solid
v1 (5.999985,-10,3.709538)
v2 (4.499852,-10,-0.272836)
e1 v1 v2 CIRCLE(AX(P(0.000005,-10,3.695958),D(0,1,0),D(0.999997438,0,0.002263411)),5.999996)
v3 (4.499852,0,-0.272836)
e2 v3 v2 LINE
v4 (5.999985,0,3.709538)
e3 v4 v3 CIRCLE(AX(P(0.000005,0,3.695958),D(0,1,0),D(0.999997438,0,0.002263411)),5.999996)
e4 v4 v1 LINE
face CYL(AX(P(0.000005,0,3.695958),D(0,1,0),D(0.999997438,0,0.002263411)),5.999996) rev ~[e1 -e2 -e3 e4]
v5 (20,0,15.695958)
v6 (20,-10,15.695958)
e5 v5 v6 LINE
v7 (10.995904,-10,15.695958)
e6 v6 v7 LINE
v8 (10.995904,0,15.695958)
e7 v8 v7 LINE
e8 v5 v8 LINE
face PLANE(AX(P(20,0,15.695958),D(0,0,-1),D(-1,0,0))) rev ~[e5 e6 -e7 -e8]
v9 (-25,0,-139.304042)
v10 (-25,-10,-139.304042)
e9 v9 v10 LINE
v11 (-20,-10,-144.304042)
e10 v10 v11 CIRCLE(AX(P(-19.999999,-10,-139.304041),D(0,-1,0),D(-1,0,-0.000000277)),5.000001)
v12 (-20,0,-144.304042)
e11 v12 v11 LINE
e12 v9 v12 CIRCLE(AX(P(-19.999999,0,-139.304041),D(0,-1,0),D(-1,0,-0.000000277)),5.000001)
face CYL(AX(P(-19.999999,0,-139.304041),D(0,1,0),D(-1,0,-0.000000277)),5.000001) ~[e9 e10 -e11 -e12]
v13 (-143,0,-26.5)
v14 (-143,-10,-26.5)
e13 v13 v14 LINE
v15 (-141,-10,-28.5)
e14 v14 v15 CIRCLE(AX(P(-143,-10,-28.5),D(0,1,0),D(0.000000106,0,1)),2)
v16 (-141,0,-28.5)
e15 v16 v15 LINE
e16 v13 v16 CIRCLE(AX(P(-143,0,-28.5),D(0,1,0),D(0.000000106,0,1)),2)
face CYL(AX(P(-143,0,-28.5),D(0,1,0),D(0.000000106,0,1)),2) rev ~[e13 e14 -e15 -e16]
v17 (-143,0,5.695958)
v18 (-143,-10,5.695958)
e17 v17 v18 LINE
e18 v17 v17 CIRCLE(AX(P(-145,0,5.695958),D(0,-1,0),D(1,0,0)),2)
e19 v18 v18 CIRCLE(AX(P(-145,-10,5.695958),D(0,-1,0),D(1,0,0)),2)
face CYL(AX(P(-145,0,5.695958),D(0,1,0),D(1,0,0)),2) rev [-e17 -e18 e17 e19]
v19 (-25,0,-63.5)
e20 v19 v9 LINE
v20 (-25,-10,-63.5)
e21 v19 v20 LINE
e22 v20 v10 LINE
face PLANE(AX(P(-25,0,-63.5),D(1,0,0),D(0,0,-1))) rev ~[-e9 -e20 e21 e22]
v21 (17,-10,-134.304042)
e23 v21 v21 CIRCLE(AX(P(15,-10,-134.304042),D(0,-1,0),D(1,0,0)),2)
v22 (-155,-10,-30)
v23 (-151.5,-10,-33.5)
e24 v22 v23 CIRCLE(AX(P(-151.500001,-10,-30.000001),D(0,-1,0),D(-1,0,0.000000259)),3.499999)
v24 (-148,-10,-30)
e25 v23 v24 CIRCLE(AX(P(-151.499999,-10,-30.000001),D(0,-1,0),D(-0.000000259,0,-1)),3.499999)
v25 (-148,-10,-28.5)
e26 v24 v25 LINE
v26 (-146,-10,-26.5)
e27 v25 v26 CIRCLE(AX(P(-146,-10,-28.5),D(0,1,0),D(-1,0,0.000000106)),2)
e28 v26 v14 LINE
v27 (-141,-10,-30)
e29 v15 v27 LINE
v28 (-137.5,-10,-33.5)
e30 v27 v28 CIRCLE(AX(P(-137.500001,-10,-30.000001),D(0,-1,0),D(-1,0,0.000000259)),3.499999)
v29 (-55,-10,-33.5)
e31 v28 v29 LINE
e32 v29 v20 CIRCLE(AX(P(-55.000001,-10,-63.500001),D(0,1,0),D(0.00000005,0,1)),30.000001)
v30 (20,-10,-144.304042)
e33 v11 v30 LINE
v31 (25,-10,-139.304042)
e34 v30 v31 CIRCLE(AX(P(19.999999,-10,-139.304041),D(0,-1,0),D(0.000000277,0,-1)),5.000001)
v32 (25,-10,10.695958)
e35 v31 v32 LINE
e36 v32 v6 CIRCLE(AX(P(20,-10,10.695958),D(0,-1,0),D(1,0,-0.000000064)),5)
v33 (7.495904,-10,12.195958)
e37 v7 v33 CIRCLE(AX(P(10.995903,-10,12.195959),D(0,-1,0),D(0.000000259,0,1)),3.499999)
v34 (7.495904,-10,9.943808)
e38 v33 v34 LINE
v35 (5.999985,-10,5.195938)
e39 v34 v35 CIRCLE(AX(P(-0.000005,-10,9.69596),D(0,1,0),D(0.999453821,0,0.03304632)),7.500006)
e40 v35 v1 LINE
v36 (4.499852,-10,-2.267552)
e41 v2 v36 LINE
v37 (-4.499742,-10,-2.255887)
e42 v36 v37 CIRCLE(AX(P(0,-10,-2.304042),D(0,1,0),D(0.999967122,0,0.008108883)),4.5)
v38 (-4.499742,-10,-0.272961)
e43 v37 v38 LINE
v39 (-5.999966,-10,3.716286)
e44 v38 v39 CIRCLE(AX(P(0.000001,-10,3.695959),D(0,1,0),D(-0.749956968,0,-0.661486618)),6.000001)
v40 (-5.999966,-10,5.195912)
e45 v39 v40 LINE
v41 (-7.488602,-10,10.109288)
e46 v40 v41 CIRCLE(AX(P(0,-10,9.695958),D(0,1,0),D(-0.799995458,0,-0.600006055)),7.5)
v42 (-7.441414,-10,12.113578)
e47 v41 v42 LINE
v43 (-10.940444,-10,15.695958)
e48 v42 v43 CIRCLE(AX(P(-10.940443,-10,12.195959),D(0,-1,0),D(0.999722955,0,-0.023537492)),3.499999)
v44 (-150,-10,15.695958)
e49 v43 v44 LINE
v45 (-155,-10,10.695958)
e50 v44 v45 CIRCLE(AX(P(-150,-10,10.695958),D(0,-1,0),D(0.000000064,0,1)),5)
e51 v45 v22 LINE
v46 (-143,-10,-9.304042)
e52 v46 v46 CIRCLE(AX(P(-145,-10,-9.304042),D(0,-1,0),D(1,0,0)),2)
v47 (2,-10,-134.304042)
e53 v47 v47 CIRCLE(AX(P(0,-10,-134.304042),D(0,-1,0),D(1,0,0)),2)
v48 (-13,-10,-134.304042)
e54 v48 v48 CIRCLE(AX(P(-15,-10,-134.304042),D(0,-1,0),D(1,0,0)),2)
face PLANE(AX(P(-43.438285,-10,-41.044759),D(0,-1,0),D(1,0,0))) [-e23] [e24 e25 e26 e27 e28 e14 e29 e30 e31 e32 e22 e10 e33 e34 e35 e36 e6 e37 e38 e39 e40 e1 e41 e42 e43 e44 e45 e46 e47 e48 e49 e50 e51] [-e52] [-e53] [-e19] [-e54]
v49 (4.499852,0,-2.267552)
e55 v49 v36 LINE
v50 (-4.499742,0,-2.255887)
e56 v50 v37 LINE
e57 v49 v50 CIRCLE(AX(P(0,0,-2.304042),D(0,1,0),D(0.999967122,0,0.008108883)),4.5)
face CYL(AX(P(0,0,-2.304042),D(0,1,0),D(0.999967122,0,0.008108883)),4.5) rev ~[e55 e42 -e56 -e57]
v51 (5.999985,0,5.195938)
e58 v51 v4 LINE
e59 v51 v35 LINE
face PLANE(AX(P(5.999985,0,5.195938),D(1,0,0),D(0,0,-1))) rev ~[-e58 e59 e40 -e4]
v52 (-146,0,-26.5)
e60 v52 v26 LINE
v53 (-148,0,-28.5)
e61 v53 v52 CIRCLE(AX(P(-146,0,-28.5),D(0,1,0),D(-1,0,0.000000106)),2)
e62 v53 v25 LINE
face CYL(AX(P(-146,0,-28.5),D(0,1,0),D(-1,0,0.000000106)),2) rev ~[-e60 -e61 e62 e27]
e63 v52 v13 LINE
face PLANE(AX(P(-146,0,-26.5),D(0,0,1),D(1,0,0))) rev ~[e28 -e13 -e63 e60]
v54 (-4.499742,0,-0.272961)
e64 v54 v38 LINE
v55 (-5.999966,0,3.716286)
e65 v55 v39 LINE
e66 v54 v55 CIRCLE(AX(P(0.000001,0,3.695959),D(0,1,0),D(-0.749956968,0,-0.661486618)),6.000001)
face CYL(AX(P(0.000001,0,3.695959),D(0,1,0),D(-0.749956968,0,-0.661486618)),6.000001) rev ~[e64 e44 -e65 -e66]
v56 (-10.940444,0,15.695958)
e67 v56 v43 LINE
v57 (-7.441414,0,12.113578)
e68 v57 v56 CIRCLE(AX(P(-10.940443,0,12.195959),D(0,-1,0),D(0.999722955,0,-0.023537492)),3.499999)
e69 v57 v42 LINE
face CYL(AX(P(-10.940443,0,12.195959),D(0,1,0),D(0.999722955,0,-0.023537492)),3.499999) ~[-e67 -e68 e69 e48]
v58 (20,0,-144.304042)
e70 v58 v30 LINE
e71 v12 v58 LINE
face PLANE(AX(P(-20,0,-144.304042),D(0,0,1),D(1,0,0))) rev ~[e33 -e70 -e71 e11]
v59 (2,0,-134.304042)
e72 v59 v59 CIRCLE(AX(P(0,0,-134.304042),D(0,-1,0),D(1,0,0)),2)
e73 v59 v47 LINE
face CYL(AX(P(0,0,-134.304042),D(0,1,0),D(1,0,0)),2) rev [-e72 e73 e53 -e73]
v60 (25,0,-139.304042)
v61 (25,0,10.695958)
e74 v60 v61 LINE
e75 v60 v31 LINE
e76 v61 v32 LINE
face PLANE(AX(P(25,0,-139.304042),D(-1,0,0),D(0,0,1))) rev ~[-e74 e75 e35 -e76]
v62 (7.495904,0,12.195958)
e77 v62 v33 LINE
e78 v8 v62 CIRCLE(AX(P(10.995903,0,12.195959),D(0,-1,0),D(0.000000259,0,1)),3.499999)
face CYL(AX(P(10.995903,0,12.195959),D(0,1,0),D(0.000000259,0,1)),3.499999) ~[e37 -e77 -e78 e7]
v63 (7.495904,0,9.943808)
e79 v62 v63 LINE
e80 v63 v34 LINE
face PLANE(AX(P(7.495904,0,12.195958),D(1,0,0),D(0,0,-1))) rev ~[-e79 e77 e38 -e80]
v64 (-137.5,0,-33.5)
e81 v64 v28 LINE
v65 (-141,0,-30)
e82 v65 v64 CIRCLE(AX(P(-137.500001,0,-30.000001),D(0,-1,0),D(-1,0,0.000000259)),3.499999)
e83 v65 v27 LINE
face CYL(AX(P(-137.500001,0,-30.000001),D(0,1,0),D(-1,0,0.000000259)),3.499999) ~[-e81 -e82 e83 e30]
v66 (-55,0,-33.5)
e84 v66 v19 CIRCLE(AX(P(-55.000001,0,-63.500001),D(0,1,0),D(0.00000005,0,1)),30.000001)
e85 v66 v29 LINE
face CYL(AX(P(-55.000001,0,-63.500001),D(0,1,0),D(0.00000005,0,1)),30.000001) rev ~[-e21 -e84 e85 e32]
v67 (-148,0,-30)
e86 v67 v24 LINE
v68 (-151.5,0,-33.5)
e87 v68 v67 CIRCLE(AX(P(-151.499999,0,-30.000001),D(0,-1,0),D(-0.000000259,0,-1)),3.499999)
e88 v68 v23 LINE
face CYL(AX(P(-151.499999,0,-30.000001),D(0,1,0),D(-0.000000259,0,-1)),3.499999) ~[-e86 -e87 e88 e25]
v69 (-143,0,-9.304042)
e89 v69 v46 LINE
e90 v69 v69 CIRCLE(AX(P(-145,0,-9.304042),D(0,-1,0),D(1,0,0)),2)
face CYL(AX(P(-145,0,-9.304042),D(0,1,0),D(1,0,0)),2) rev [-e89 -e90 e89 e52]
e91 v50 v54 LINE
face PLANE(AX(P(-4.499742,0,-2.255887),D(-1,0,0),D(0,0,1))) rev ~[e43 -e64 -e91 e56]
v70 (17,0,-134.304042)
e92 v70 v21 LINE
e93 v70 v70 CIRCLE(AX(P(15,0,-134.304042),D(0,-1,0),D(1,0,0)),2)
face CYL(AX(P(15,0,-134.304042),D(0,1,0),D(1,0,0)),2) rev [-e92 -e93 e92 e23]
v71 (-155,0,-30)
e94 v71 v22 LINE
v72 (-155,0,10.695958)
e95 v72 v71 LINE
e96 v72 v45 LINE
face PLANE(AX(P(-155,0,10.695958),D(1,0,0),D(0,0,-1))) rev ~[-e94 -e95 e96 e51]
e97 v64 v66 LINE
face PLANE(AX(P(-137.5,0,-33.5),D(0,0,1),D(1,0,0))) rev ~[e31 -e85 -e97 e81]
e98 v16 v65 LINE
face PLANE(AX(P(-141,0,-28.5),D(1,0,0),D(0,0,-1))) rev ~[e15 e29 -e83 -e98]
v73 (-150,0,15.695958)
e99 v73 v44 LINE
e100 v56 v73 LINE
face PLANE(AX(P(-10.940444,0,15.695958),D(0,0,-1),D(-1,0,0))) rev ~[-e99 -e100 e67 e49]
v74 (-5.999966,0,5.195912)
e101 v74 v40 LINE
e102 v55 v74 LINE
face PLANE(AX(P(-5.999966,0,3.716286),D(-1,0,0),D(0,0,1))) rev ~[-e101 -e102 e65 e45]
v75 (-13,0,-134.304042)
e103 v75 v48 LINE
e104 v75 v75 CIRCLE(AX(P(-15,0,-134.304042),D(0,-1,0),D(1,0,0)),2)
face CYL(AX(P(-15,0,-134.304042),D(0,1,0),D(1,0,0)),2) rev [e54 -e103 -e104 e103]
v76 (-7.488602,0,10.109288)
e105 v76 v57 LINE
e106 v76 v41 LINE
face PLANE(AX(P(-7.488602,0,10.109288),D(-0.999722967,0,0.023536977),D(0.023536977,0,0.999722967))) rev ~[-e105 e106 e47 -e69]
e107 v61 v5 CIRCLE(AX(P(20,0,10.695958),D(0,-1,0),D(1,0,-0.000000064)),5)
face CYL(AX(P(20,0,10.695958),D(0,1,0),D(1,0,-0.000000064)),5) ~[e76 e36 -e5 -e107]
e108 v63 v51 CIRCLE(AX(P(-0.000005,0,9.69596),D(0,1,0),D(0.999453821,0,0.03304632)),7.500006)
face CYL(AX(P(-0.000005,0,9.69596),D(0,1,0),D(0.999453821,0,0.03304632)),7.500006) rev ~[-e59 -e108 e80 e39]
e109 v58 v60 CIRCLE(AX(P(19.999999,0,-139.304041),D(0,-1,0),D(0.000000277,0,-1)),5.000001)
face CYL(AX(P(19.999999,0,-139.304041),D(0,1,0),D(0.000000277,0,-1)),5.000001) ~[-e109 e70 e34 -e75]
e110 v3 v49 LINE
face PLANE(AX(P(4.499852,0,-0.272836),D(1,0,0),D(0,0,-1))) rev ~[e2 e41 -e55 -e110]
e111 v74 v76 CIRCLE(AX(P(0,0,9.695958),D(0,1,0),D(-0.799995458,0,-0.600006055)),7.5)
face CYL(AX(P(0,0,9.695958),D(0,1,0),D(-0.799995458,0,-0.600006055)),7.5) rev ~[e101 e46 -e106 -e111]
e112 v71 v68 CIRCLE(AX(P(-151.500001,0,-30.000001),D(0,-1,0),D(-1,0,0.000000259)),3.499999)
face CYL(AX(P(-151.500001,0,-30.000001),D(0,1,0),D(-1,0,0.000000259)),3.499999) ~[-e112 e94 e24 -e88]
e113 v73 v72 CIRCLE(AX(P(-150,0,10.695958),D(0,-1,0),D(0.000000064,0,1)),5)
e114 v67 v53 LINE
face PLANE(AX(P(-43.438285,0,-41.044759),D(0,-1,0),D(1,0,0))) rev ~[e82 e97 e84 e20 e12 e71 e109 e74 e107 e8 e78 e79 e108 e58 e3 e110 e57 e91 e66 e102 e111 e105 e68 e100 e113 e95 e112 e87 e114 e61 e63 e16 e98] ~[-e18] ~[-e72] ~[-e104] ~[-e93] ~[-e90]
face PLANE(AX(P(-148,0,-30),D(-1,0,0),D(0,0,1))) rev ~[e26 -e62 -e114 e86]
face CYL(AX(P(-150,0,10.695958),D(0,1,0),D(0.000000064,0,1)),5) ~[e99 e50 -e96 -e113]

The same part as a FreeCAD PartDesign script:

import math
import FreeCAD as App
import Part
import Sketcher
from FreeCAD import Vector
Q = App.Units.Quantity

doc = App.newDocument("Part")
body = doc.addObject("PartDesign::Body", "Body")

# Sketch on XZ plane
sketch1 = body.newObject("Sketcher::SketchObject", "Sketch")
sketch1.AttachmentSupport = (doc.getObject("XZ_Plane"), [""])
sketch1.MapMode = "FlatFace"
sketch1.addGeometry([
    Part.ArcOfCircle(Part.Circle(Vector(-137.5, -30, 0), Vector(0, 0, 1), 3.5), math.radians(180), math.radians(270)),  # 0
    Part.LineSegment(Vector(-137.5, -33.5, 0), Vector(-55, -33.5, 0)),  # 1
    Part.ArcOfCircle(Part.Circle(Vector(-55, -63.5, 0), Vector(0, 0, 1), 30), math.radians(0), math.radians(90)),  # 2
    Part.LineSegment(Vector(-25, -63.5, 0), Vector(-25, -139.3, 0)),  # 3
    Part.ArcOfCircle(Part.Circle(Vector(-20, -139.3, 0), Vector(0, 0, 1), 5), math.radians(-180), math.radians(-90)),  # 4
    Part.LineSegment(Vector(-20, -144.3, 0), Vector(20, -144.3, 0)),  # 5
    Part.ArcOfCircle(Part.Circle(Vector(20, -139.3, 0), Vector(0, 0, 1), 5), math.radians(-90), math.radians(0)),  # 6
    Part.LineSegment(Vector(25, -139.3, 0), Vector(25, 10.7, 0)),  # 7
    Part.ArcOfCircle(Part.Circle(Vector(20, 10.7, 0), Vector(0, 0, 1), 5), math.radians(0), math.radians(90)),  # 8
    Part.LineSegment(Vector(20, 15.7, 0), Vector(11, 15.7, 0)),  # 9
    Part.ArcOfCircle(Part.Circle(Vector(11, 12.2, 0), Vector(0, 0, 1), 3.5), math.radians(90), math.radians(180)),  # 10
    Part.LineSegment(Vector(7.5, 12.2, 0), Vector(7.5, 9.9, 0)),  # 11
    Part.ArcOfCircle(Part.Circle(Vector(0, 9.7, 0), Vector(0, 0, 1), 7.5), math.radians(-37), math.radians(2)),  # 12
    Part.LineSegment(Vector(6, 5.2, 0), Vector(6, 3.7, 0)),  # 13
    Part.ArcOfCircle(Part.Circle(Vector(0, 3.7, 0), Vector(0, 0, 1), 6), math.radians(-41), math.radians(0)),  # 14
    Part.LineSegment(Vector(4.5, -0.3, 0), Vector(4.5, -2.3, 0)),  # 15
    Part.ArcOfCircle(Part.Circle(Vector(0, -2.3, 0), Vector(0, 0, 1), 4.5), math.radians(179), math.radians(360)),  # 16
    Part.LineSegment(Vector(-4.5, -2.3, 0), Vector(-4.5, -0.3, 0)),  # 17
    Part.ArcOfCircle(Part.Circle(Vector(0, 3.7, 0), Vector(0, 0, 1), 6), math.radians(180), math.radians(221)),  # 18
    Part.LineSegment(Vector(-6, 3.7, 0), Vector(-6, 5.2, 0)),  # 19
    Part.ArcOfCircle(Part.Circle(Vector(0, 9.7, 0), Vector(0, 0, 1), 7.5), math.radians(177), math.radians(217)),  # 20
    Part.LineSegment(Vector(-7.5, 10.1, 0), Vector(-7.4, 12.1, 0)),  # 21
    Part.ArcOfCircle(Part.Circle(Vector(-10.9, 12.2, 0), Vector(0, 0, 1), 3.5), math.radians(-1), math.radians(90)),  # 22
    Part.LineSegment(Vector(-10.9, 15.7, 0), Vector(-150, 15.7, 0)),  # 23
    Part.ArcOfCircle(Part.Circle(Vector(-150, 10.7, 0), Vector(0, 0, 1), 5), math.radians(90), math.radians(180)),  # 24
    Part.LineSegment(Vector(-155, 10.7, 0), Vector(-155, -30, 0)),  # 25
    Part.ArcOfCircle(Part.Circle(Vector(-151.5, -30, 0), Vector(0, 0, 1), 3.5), math.radians(180), math.radians(270)),  # 26
    Part.ArcOfCircle(Part.Circle(Vector(-151.5, -30, 0), Vector(0, 0, 1), 3.5), math.radians(-90), math.radians(0)),  # 27
    Part.LineSegment(Vector(-148, -30, 0), Vector(-148, -28.5, 0)),  # 28
    Part.ArcOfCircle(Part.Circle(Vector(-146, -28.5, 0), Vector(0, 0, 1), 2), math.radians(90), math.radians(180)),  # 29
    Part.LineSegment(Vector(-146, -26.5, 0), Vector(-143, -26.5, 0)),  # 30
    Part.ArcOfCircle(Part.Circle(Vector(-143, -28.5, 0), Vector(0, 0, 1), 2), math.radians(0), math.radians(90)),  # 31
    Part.LineSegment(Vector(-141, -28.5, 0), Vector(-141, -30, 0)),  # 32
    Part.Circle(Vector(-15, -134.3, 0), Vector(0, 0, 1), 2),  # 33
    Part.Circle(Vector(0, -134.3, 0), Vector(0, 0, 1), 2),  # 34
    Part.Circle(Vector(15, -134.3, 0), Vector(0, 0, 1), 2),  # 35
    Part.Circle(Vector(-145, -9.3, 0), Vector(0, 0, 1), 2),  # 36
    Part.Circle(Vector(-145, 5.7, 0), Vector(0, 0, 1), 2),  # 37
], False)
sketch1.addConstraint([
    Sketcher.Constraint("Tangent", 0, 2, 1, 1),
    Sketcher.Constraint("Tangent", 1, 2, 2, 2),
    Sketcher.Constraint("Tangent", 2, 1, 3, 1),
    Sketcher.Constraint("Tangent", 3, 2, 4, 1),
    Sketcher.Constraint("Tangent", 4, 2, 5, 1),
    Sketcher.Constraint("Tangent", 5, 2, 6, 1),
    Sketcher.Constraint("Tangent", 6, 2, 7, 1),
    Sketcher.Constraint("Tangent", 7, 2, 8, 1),
    Sketcher.Constraint("Tangent", 8, 2, 9, 1),
    Sketcher.Constraint("Tangent", 9, 2, 10, 1),
    Sketcher.Constraint("Tangent", 10, 2, 11, 1),
    Sketcher.Constraint("Coincident", 11, 2, 12, 2),
    Sketcher.Constraint("Coincident", 12, 1, 13, 1),
    Sketcher.Constraint("Coincident", 13, 2, 14, 2),
    Sketcher.Constraint("Coincident", 14, 1, 15, 1),
    Sketcher.Constraint("Coincident", 15, 2, 16, 2),
    Sketcher.Constraint("Coincident", 16, 1, 17, 1),
    Sketcher.Constraint("Coincident", 17, 2, 18, 2),
    Sketcher.Constraint("Coincident", 18, 1, 19, 1),
    Sketcher.Constraint("Coincident", 19, 2, 20, 2),
    Sketcher.Constraint("Coincident", 20, 1, 21, 1),
    Sketcher.Constraint("Tangent", 21, 2, 22, 1),
    Sketcher.Constraint("Tangent", 22, 2, 23, 1),
    Sketcher.Constraint("Tangent", 23, 2, 24, 1),
    Sketcher.Constraint("Tangent", 24, 2, 25, 1),
    Sketcher.Constraint("Tangent", 25, 2, 26, 1),
    Sketcher.Constraint("Tangent", 26, 2, 27, 1),
    Sketcher.Constraint("Tangent", 27, 2, 28, 1),
    Sketcher.Constraint("Tangent", 28, 2, 29, 2),
    Sketcher.Constraint("Tangent", 29, 1, 30, 1),
    Sketcher.Constraint("Tangent", 30, 2, 31, 2),
    Sketcher.Constraint("Tangent", 31, 1, 32, 1),
    Sketcher.Constraint("Tangent", 32, 2, 0, 1),
    Sketcher.Constraint("Horizontal", 1),
    Sketcher.Constraint("Vertical", 3),
    Sketcher.Constraint("Horizontal", 5),
    Sketcher.Constraint("Vertical", 7),
    Sketcher.Constraint("Horizontal", 9),
    Sketcher.Constraint("Vertical", 11),
    Sketcher.Constraint("Vertical", 13),
    Sketcher.Constraint("Vertical", 15),
    Sketcher.Constraint("Vertical", 17),
    Sketcher.Constraint("Vertical", 19),
    Sketcher.Constraint("Horizontal", 23),
    Sketcher.Constraint("Vertical", 25),
    Sketcher.Constraint("Vertical", 28),
    Sketcher.Constraint("Horizontal", 30),
    Sketcher.Constraint("Vertical", 32),
    Sketcher.Constraint("Coincident", 18, 3, 14, 3),
    Sketcher.Constraint("Coincident", 20, 3, 12, 3),
    Sketcher.Constraint("Equal", 4, 6),
    Sketcher.Constraint("Equal", 6, 8),
    Sketcher.Constraint("Equal", 0, 10),
    Sketcher.Constraint("Equal", 10, 22),
    Sketcher.Constraint("Equal", 8, 24),
    Sketcher.Constraint("Equal", 22, 26),
    Sketcher.Constraint("Equal", 26, 27),
    Sketcher.Constraint("Equal", 29, 31),
    Sketcher.Constraint("Equal", 31, 33),
    Sketcher.Constraint("Equal", 33, 34),
    Sketcher.Constraint("Equal", 34, 35),
    Sketcher.Constraint("Equal", 35, 36),
    Sketcher.Constraint("Equal", 36, 37),
    Sketcher.Constraint("Symmetric", 33, 3, 35, 3, -2),
    Sketcher.Constraint("PointOnObject", 16, 3, -2),
    Sketcher.Constraint("PointOnObject", 18, 3, -2),
    Sketcher.Constraint("PointOnObject", 20, 3, -2),
    Sketcher.Constraint("PointOnObject", 34, 3, -2),
    Sketcher.Constraint("Horizontal", 10, 3, 22, 3),
    Sketcher.Constraint("Horizontal", 0, 3, 26, 3),
    Sketcher.Constraint("Horizontal", 33, 3, 34, 3),
    Sketcher.Constraint("Vertical", 36, 3, 37, 3),
    Sketcher.Constraint("Vertical", 27, 3, 26, 2),
    Sketcher.Constraint("Diameter", 33, Q("4 mm")),
    Sketcher.Constraint("Radius", 2, Q("30.000001 mm")),
    Sketcher.Constraint("Radius", 4, Q("5.000001 mm")),
    Sketcher.Constraint("Radius", 18, Q("6.000001 mm")),
    Sketcher.Constraint("Radius", 0, Q("3.499999 mm")),
    Sketcher.Constraint("Radius", 16, Q("4.5 mm")),
    Sketcher.Constraint("Radius", 20, Q("7.5 mm")),
    Sketcher.Constraint("DistanceX", 5, 1, 5, 2, Q("40 mm")),
    Sketcher.Constraint("DistanceX", 30, 1, 30, 2, Q("3 mm")),
    Sketcher.Constraint("DistanceY", 7, 1, 7, 2, Q("150 mm")),
    Sketcher.Constraint("DistanceX", 1, 1, 1, 2, Q("82.5 mm")),
    Sketcher.Constraint("DistanceY", 28, 1, 28, 2, Q("1.5 mm")),
    Sketcher.Constraint("DistanceY", 0, 3, -1, 1, Q("30.000001 mm")),
    Sketcher.Constraint("DistanceX", 2, 3, -1, 1, Q("55.000001 mm")),
    Sketcher.Constraint("DistanceX", 33, 3, -1, 1, Q("15 mm")),
    Sketcher.Constraint("DistanceX", 36, 3, -1, 1, Q("145 mm")),
    Sketcher.Constraint("DistanceY", 4, 3, 12, 3, Q("149.000001 mm")),
    Sketcher.Constraint("DistanceY", 14, 3, 8, 3, Q("7.000001 mm")),
    Sketcher.Constraint("DistanceY", 16, 3, 14, 3, Q("6 mm")),
    Sketcher.Constraint("DistanceY", 4, 3, 33, 3, Q("4.999999 mm")),
    Sketcher.Constraint("DistanceY", 36, 3, 24, 3, Q("20 mm")),
    Sketcher.Constraint("DistanceY", 37, 3, 24, 3, Q("5 mm")),
    Sketcher.Constraint("DistanceY", 13, 2, 13, 1, Q("1.4864 mm")),
    Sketcher.Constraint("Radius", 12, Q("7.500006 mm")),
    Sketcher.Constraint("Radius", 14, Q("5.999996 mm")),
    Sketcher.Constraint("DistanceY", 11, 2, 11, 1, Q("2.25215 mm")),
    Sketcher.Constraint("DistanceX", 23, 2, 23, 1, Q("139.059556 mm")),
    Sketcher.Constraint("DistanceY", 3, 2, 3, 1, Q("75.804042 mm")),
    Sketcher.Constraint("DistanceY", 15, 2, 15, 1, Q("1.994716 mm")),
    Sketcher.Constraint("DistanceY", 17, 1, 17, 2, Q("1.982926 mm")),
    Sketcher.Constraint("DistanceY", 19, 1, 19, 2, Q("1.479626 mm")),
    Sketcher.Constraint("DistanceY", -1, 1, 20, 1, Q("10.109288 mm")),
])
pad1 = body.newObject("PartDesign::Pad", "Pad")
pad1.Profile = sketch1
pad1.Length = 10

doc.recompute()
